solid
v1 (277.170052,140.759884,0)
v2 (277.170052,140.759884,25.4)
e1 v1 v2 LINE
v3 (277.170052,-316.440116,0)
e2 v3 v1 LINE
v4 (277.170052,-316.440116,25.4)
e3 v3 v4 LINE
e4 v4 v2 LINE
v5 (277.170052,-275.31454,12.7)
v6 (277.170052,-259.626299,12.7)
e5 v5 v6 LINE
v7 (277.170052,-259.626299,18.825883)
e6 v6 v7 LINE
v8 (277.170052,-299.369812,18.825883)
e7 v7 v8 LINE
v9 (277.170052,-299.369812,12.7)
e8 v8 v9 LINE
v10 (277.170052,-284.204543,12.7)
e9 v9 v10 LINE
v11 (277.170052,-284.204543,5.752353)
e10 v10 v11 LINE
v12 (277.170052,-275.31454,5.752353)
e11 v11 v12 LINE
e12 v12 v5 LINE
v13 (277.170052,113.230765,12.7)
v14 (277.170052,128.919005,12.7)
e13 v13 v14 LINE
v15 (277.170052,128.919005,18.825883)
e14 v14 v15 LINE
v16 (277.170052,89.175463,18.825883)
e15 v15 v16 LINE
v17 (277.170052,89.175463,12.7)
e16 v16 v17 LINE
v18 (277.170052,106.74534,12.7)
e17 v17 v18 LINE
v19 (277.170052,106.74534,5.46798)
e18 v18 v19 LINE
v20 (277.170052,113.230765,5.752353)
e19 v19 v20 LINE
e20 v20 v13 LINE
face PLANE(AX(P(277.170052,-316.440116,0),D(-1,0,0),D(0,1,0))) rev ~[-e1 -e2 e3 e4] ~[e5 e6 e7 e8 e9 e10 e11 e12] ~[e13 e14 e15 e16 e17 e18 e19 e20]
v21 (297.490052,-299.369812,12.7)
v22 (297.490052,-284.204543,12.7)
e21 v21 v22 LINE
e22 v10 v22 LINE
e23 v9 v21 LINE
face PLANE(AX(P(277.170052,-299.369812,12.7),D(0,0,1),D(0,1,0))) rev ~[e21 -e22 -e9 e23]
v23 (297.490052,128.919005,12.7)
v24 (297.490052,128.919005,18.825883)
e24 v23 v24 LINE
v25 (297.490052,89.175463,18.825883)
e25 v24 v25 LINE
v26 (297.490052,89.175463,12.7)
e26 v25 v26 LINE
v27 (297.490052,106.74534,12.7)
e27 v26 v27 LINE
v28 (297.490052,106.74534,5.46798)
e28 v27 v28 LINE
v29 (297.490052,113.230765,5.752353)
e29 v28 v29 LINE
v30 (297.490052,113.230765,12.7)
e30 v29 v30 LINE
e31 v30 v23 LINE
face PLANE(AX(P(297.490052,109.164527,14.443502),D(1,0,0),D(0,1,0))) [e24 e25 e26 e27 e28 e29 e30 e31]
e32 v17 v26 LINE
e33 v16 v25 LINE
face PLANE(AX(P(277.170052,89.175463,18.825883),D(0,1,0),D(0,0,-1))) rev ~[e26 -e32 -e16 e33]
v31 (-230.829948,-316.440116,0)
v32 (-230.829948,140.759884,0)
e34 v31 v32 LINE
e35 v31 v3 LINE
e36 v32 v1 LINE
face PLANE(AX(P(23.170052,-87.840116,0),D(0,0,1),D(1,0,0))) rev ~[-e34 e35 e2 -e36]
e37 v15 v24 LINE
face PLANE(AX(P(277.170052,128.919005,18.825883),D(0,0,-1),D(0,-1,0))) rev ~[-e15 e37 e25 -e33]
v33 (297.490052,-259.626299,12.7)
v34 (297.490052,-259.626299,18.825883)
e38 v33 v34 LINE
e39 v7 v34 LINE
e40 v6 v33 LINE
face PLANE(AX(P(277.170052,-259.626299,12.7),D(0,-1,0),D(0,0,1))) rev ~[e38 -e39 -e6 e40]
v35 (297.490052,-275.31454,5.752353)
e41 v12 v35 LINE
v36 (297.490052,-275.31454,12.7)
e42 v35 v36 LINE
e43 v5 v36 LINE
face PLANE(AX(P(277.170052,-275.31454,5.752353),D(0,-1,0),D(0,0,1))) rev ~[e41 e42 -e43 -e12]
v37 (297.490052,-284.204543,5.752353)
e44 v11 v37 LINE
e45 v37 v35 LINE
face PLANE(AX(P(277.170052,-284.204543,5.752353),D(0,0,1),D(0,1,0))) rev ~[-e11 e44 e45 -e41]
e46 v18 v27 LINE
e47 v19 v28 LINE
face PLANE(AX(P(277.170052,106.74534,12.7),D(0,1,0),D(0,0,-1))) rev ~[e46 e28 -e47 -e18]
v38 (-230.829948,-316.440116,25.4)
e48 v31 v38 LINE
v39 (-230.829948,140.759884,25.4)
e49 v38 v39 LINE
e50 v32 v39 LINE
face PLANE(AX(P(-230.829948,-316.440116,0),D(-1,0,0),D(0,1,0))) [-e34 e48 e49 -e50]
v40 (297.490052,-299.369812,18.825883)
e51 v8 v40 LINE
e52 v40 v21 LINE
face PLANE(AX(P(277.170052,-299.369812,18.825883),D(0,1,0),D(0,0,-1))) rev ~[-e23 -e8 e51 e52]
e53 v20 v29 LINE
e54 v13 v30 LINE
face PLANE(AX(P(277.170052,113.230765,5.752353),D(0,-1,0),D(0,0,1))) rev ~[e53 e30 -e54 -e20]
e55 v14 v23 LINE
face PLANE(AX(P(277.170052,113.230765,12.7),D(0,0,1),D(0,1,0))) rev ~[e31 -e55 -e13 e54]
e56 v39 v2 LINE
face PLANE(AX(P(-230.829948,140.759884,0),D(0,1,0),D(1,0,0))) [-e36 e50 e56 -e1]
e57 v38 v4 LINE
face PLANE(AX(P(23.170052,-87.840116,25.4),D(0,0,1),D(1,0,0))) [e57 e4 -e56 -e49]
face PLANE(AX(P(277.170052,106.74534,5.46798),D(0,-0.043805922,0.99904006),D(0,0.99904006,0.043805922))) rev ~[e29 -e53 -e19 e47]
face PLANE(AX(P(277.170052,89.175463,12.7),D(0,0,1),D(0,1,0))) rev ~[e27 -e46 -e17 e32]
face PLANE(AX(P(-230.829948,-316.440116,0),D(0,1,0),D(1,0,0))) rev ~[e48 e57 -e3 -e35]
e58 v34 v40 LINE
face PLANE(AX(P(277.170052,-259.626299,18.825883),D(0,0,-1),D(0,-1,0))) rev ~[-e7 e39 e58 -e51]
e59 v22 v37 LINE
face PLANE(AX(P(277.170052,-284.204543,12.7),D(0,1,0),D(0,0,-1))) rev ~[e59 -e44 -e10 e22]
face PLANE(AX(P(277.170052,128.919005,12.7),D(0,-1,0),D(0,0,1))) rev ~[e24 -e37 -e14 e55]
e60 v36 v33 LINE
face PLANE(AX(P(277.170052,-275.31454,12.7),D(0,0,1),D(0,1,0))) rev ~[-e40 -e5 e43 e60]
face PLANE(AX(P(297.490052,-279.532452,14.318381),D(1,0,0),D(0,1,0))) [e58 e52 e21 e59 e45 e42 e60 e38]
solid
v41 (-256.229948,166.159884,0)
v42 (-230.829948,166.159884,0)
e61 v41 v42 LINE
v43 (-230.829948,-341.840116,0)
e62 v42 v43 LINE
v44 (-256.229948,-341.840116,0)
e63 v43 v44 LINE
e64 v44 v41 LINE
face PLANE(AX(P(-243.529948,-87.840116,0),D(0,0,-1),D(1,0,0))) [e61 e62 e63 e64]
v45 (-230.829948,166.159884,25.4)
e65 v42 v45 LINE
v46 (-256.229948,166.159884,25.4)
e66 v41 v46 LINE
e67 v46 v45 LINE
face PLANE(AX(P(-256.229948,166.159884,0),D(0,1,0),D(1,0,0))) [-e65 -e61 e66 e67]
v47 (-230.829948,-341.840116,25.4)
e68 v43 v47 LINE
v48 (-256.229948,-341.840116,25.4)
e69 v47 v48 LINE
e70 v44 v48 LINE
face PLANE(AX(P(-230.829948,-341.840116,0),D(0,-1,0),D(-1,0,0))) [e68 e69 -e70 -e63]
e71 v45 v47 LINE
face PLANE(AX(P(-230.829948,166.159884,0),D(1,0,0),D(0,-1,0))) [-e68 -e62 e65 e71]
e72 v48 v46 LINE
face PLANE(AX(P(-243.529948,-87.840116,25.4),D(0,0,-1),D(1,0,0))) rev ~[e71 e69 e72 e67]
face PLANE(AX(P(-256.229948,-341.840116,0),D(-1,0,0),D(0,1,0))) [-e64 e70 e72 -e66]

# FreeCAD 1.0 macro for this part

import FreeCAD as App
import Part
import Sketcher
from FreeCAD import Vector
Q = App.Units.Quantity

doc = App.newDocument("Part")
body = doc.addObject("PartDesign::Body", "Body")

# Sketch on XY plane
sketch1 = body.newObject("Sketcher::SketchObject", "Sketch")
sketch1.AttachmentSupport = (doc.getObject("XY_Plane"), [""])
sketch1.MapMode = "FlatFace"
sketch1.addGeometry(Part.LineSegment(Vector(-231, 141, 0), Vector(-231, -316, 0)), False)
sketch1.addGeometry(Part.LineSegment(Vector(-231, -316, 0), Vector(277, -316, 0)), False)
sketch1.addGeometry(Part.LineSegment(Vector(277, -316, 0), Vector(277, 141, 0)), False)
sketch1.addGeometry(Part.LineSegment(Vector(277, 141, 0), Vector(-231, 141, 0)), False)
sketch1.addConstraint(Sketcher.Constraint("Coincident", 0, 2, 1, 1))
sketch1.addConstraint(Sketcher.Constraint("Coincident", 1, 2, 2, 1))
sketch1.addConstraint(Sketcher.Constraint("Coincident", 2, 2, 3, 1))
sketch1.addConstraint(Sketcher.Constraint("Coincident", 3, 2, 0, 1))
sketch1.addConstraint(Sketcher.Constraint("Vertical", 0))
sketch1.addConstraint(Sketcher.Constraint("Horizontal", 1))
sketch1.addConstraint(Sketcher.Constraint("Vertical", 2))
sketch1.addConstraint(Sketcher.Constraint("Horizontal", 3))
sketch1.addConstraint(Sketcher.Constraint("DistanceX", 1, 1, 1, 2, Q("20 in")))
sketch1.addConstraint(Sketcher.Constraint("DistanceY", 0, 2, 0, 1, Q("18 in")))
sketch1.addConstraint(Sketcher.Constraint("DistanceX", 0, 2, -1, 1, 230.829948))
sketch1.addConstraint(Sketcher.Constraint("DistanceY", 0, 2, -1, 1, 316.440116))
pad1 = body.newObject("PartDesign::Pad", "Pad")
pad1.Profile = sketch1
pad1.Length = Q("1 in")

# Sketch on YZ plane
sketch2 = body.newObject("Sketcher::SketchObject", "Sketch001")
sketch2.AttachmentSupport = (doc.getObject("YZ_Plane"), [""])
sketch2.MapMode = "FlatFace"
sketch2.AttachmentOffset = App.Placement(Vector(0, 0, 277.170052), App.Rotation())
sketch2.addGeometry(Part.LineSegment(Vector(-260, 19, 0), Vector(-299, 19, 0)), False)
sketch2.addGeometry(Part.LineSegment(Vector(-299, 19, 0), Vector(-299, 13, 0)), False)
sketch2.addGeometry(Part.LineSegment(Vector(-299, 13, 0), Vector(-284, 13, 0)), False)
sketch2.addGeometry(Part.LineSegment(Vector(-284, 13, 0), Vector(-284, 6, 0)), False)
sketch2.addGeometry(Part.LineSegment(Vector(-284, 6, 0), Vector(-275, 6, 0)), False)
sketch2.addGeometry(Part.LineSegment(Vector(-275, 6, 0), Vector(-275, 13, 0)), False)
sketch2.addGeometry(Part.LineSegment(Vector(-275, 13, 0), Vector(-260, 13, 0)), False)
sketch2.addGeometry(Part.LineSegment(Vector(-260, 13, 0), Vector(-260, 19, 0)), False)
sketch2.addGeometry(Part.LineSegment(Vector(89, 19, 0), Vector(89, 13, 0)), False)
sketch2.addGeometry(Part.LineSegment(Vector(89, 13, 0), Vector(107, 13, 0)), False)
sketch2.addGeometry(Part.LineSegment(Vector(107, 13, 0), Vector(107, 5, 0)), False)
sketch2.addGeometry(Part.LineSegment(Vector(107, 5, 0), Vector(113, 6, 0)), False)
sketch2.addGeometry(Part.LineSegment(Vector(113, 6, 0), Vector(113, 13, 0)), False)
sketch2.addGeometry(Part.LineSegment(Vector(113, 13, 0), Vector(129, 13, 0)), False)
sketch2.addGeometry(Part.LineSegment(Vector(129, 13, 0), Vector(129, 19, 0)), False)
sketch2.addGeometry(Part.LineSegment(Vector(129, 19, 0), Vector(89, 19, 0)), False)
sketch2.addConstraint(Sketcher.Constraint("Coincident", 0, 2, 1, 1))
sketch2.addConstraint(Sketcher.Constraint("Coincident", 1, 2, 2, 1))
sketch2.addConstraint(Sketcher.Constraint("Coincident", 2, 2, 3, 1))
sketch2.addConstraint(Sketcher.Constraint("Coincident", 3, 2, 4, 1))
sketch2.addConstraint(Sketcher.Constraint("Coincident", 4, 2, 5, 1))
sketch2.addConstraint(Sketcher.Constraint("Coincident", 5, 2, 6, 1))
sketch2.addConstraint(Sketcher.Constraint("Coincident", 6, 2, 7, 1))
sketch2.addConstraint(Sketcher.Constraint("Coincident", 7, 2, 0, 1))
sketch2.addConstraint(Sketcher.Constraint("Coincident", 8, 2, 9, 1))
sketch2.addConstraint(Sketcher.Constraint("Coincident", 9, 2, 10, 1))
sketch2.addConstraint(Sketcher.Constraint("Coincident", 10, 2, 11, 1))
sketch2.addConstraint(Sketcher.Constraint("Coincident", 11, 2, 12, 1))
sketch2.addConstraint(Sketcher.Constraint("Coincident", 12, 2, 13, 1))
sketch2.addConstraint(Sketcher.Constraint("Coincident", 13, 2, 14, 1))
sketch2.addConstraint(Sketcher.Constraint("Coincident", 14, 2, 15, 1))
sketch2.addConstraint(Sketcher.Constraint("Coincident", 15, 2, 8, 1))
sketch2.addConstraint(Sketcher.Constraint("Horizontal", 0))
sketch2.addConstraint(Sketcher.Constraint("Vertical", 1))
sketch2.addConstraint(Sketcher.Constraint("Horizontal", 2))
sketch2.addConstraint(Sketcher.Constraint("Vertical", 3))
sketch2.addConstraint(Sketcher.Constraint("Horizontal", 4))
sketch2.addConstraint(Sketcher.Constraint("Vertical", 5))
sketch2.addConstraint(Sketcher.Constraint("Horizontal", 6))
sketch2.addConstraint(Sketcher.Constraint("Vertical", 7))
sketch2.addConstraint(Sketcher.Constraint("Vertical", 8))
sketch2.addConstraint(Sketcher.Constraint("Horizontal", 9))
sketch2.addConstraint(Sketcher.Constraint("Vertical", 10))
sketch2.addConstraint(Sketcher.Constraint("Vertical", 12))
sketch2.addConstraint(Sketcher.Constraint("Horizontal", 13))
sketch2.addConstraint(Sketcher.Constraint("Vertical", 14))
sketch2.addConstraint(Sketcher.Constraint("Horizontal", 15))
sketch2.addConstraint(Sketcher.Constraint("Horizontal", 2, 2, 5, 2))
sketch2.addConstraint(Sketcher.Constraint("Horizontal", 6, 2, 8, 2))
sketch2.addConstraint(Sketcher.Constraint("Horizontal", 4, 2, 11, 2))
sketch2.addConstraint(Sketcher.Constraint("Horizontal", 9, 2, 12, 2))
sketch2.addConstraint(Sketcher.Constraint("Horizontal", 7, 2, 14, 2))
sketch2.addConstraint(Sketcher.Constraint("Equal", 6, 13))
sketch2.addConstraint(Sketcher.Constraint("DistanceX", 4, 1, 4, 2, Q("0.3500001 in")))
sketch2.addConstraint(Sketcher.Constraint("DistanceY", -1, 1, 1, 2, Q("0.5 in")))
sketch2.addConstraint(Sketcher.Constraint("DistanceX", 5, 2, 8, 2, Q("14.3500001 in")))
sketch2.addConstraint(Sketcher.Constraint("DistanceX", 2, 1, 2, 2, 15.165269))
sketch2.addConstraint(Sketcher.Constraint("DistanceX", 6, 1, 6, 2, 15.688241))
sketch2.addConstraint(Sketcher.Constraint("DistanceY", 10, 2, 10, 1, 7.23202))
sketch2.addConstraint(Sketcher.Constraint("DistanceX", 6, 2, -1, 1, 259.626299))
sketch2.addConstraint(Sketcher.Constraint("DistanceX", 9, 1, 9, 2, 17.569877))
sketch2.addConstraint(Sketcher.Constraint("DistanceX", 15, 2, 15, 1, 39.743542))
sketch2.addConstraint(Sketcher.Constraint("DistanceY", 1, 2, 1, 1, 6.125883))
sketch2.addConstraint(Sketcher.Constraint("DistanceY", 3, 2, 3, 1, 6.947647))
pad2 = body.newObject("PartDesign::Pad", "Pad001")
pad2.Profile = sketch2
pad2.Length = Q("0.8 in")
body2 = doc.addObject("PartDesign::Body", "Body001")

# Sketch on XY plane
sketch3 = body2.newObject("Sketcher::SketchObject", "Sketch002")
sketch3.AttachmentSupport = (doc.getObject("XY_Plane001"), [""])
sketch3.MapMode = "FlatFace"
sketch3.addGeometry(Part.LineSegment(Vector(-231, -342, 0), Vector(-256, -342, 0)), False)
sketch3.addGeometry(Part.LineSegment(Vector(-256, -342, 0), Vector(-256, 166, 0)), False)
sketch3.addGeometry(Part.LineSegment(Vector(-256, 166, 0), Vector(-231, 166, 0)), False)
sketch3.addGeometry(Part.LineSegment(Vector(-231, 166, 0), Vector(-231, -342, 0)), False)
sketch3.addConstraint(Sketcher.Constraint("Coincident", 0, 2, 1, 1))
sketch3.addConstraint(Sketcher.Constraint("Coincident", 1, 2, 2, 1))
sketch3.addConstraint(Sketcher.Constraint("Coincident", 2, 2, 3, 1))
sketch3.addConstraint(Sketcher.Constraint("Coincident", 3, 2, 0, 1))
sketch3.addConstraint(Sketcher.Constraint("Horizontal", 0))
sketch3.addConstraint(Sketcher.Constraint("Vertical", 1))
sketch3.addConstraint(Sketcher.Constraint("Horizontal", 2))
sketch3.addConstraint(Sketcher.Constraint("Vertical", 3))
sketch3.addConstraint(Sketcher.Constraint("DistanceX", 0, 2, 0, 1, Q("1 in")))
sketch3.addConstraint(Sketcher.Constraint("DistanceY", 1, 1, 1, 2, Q("20 in")))
sketch3.addConstraint(Sketcher.Constraint("DistanceX", 0, 2, -1, 1, 256.229948))
sketch3.addConstraint(Sketcher.Constraint("DistanceY", 0, 2, -1, 1, 341.840116))
pad3 = body2.newObject("PartDesign::Pad", "Pad002")
pad3.Profile = sketch3
pad3.Length = Q("1 in")

doc.recompute()
